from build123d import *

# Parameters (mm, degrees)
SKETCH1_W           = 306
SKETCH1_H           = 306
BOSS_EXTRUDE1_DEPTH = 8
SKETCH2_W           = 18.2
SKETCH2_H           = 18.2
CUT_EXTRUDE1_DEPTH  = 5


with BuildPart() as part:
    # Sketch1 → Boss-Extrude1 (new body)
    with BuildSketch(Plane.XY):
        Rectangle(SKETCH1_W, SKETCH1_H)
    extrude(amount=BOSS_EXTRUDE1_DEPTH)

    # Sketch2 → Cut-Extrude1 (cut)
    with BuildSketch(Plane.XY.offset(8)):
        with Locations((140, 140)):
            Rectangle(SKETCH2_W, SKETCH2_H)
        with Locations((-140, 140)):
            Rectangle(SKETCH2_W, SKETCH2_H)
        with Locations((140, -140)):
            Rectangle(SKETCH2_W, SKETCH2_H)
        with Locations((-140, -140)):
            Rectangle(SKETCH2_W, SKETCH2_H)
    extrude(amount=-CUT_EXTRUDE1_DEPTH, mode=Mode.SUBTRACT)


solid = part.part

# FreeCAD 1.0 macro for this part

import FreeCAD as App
import Part
import Sketcher
from FreeCAD import Vector
Q = App.Units.Quantity

doc = App.newDocument("Part")
body = doc.addObject("PartDesign::Body", "Body")

# Sketch on XY plane
sketch1 = body.newObject("Sketcher::SketchObject", "Sketch")
sketch1.AttachmentSupport = (doc.getObject("XY_Plane"), [""])
sketch1.MapMode = "FlatFace"
sketch1.addGeometry([
    Part.LineSegment(Vector(-153, 153, 0), Vector(-153, -153, 0)),
    Part.LineSegment(Vector(-153, -153, 0), Vector(153, -153, 0)),
    Part.LineSegment(Vector(153, -153, 0), Vector(153, 153, 0)),
    Part.LineSegment(Vector(153, 153, 0), Vector(-153, 153, 0)),
], False)
sketch1.addConstraint([
    Sketcher.Constraint("Coincident", 0, 2, 1, 1),
    Sketcher.Constraint("Coincident", 1, 2, 2, 1),
    Sketcher.Constraint("Coincident", 2, 2, 3, 1),
    Sketcher.Constraint("Coincident", 3, 2, 0, 1),
    Sketcher.Constraint("Vertical", 0),
    Sketcher.Constraint("Horizontal", 1),
    Sketcher.Constraint("Vertical", 2),
    Sketcher.Constraint("Horizontal", 3),
    Sketcher.Constraint("Symmetric", 0, 2, 2, 2, -1, 1),
    Sketcher.Constraint("Equal", 3, 0),
    Sketcher.Constraint("DistanceX", 1, 1, 1, 2, Q("306 mm")),
])
pad1 = body.newObject("PartDesign::Pad", "Pad")
pad1.Profile = sketch1
pad1.Length = 8

# Sketch on XY plane
sketch2 = body.newObject("Sketcher::SketchObject", "Sketch001")
sketch2.AttachmentSupport = (doc.getObject("XY_Plane"), [""])
sketch2.MapMode = "FlatFace"
sketch2.AttachmentOffset = App.Placement(Vector(0, 0, 8), App.Rotation())
sketch2.addGeometry([
    Part.LineSegment(Vector(131, 149, 0), Vector(131, 131, 0)),  # 0
    Part.LineSegment(Vector(131, 131, 0), Vector(149, 131, 0)),  # 1
    Part.LineSegment(Vector(149, 131, 0), Vector(149, 149, 0)),  # 2
    Part.LineSegment(Vector(149, 149, 0), Vector(131, 149, 0)),  # 3
    Part.LineSegment(Vector(-149, 149, 0), Vector(-149, 131, 0)),  # 4
    Part.LineSegment(Vector(-149, 131, 0), Vector(-131, 131, 0)),  # 5
    Part.LineSegment(Vector(-131, 131, 0), Vector(-131, 149, 0)),  # 6
    Part.LineSegment(Vector(-131, 149, 0), Vector(-149, 149, 0)),  # 7
    Part.LineSegment(Vector(131, -131, 0), Vector(131, -149, 0)),  # 8
    Part.LineSegment(Vector(131, -149, 0), Vector(149, -149, 0)),  # 9
    Part.LineSegment(Vector(149, -149, 0), Vector(149, -131, 0)),  # 10
    Part.LineSegment(Vector(149, -131, 0), Vector(131, -131, 0)),  # 11
    Part.LineSegment(Vector(-149, -131, 0), Vector(-149, -149, 0)),  # 12
    Part.LineSegment(Vector(-149, -149, 0), Vector(-131, -149, 0)),  # 13
    Part.LineSegment(Vector(-131, -149, 0), Vector(-131, -131, 0)),  # 14
    Part.LineSegment(Vector(-131, -131, 0), Vector(-149, -131, 0)),  # 15
], False)
sketch2.addConstraint([
    Sketcher.Constraint("Coincident", 0, 2, 1, 1),
    Sketcher.Constraint("Coincident", 1, 2, 2, 1),
    Sketcher.Constraint("Coincident", 2, 2, 3, 1),
    Sketcher.Constraint("Coincident", 3, 2, 0, 1),
    Sketcher.Constraint("Coincident", 4, 2, 5, 1),
    Sketcher.Constraint("Coincident", 5, 2, 6, 1),
    Sketcher.Constraint("Coincident", 6, 2, 7, 1),
    Sketcher.Constraint("Coincident", 7, 2, 4, 1),
    Sketcher.Constraint("Coincident", 8, 2, 9, 1),
    Sketcher.Constraint("Coincident", 9, 2, 10, 1),
    Sketcher.Constraint("Coincident", 10, 2, 11, 1),
    Sketcher.Constraint("Coincident", 11, 2, 8, 1),
    Sketcher.Constraint("Coincident", 12, 2, 13, 1),
    Sketcher.Constraint("Coincident", 13, 2, 14, 1),
    Sketcher.Constraint("Coincident", 14, 2, 15, 1),
    Sketcher.Constraint("Coincident", 15, 2, 12, 1),
    Sketcher.Constraint("Vertical", 0),
    Sketcher.Constraint("Horizontal", 1),
    Sketcher.Constraint("Vertical", 2),
    Sketcher.Constraint("Horizontal", 3),
    Sketcher.Constraint("Vertical", 4),
    Sketcher.Constraint("Horizontal", 5),
    Sketcher.Constraint("Vertical", 6),
    Sketcher.Constraint("Horizontal", 7),
    Sketcher.Constraint("Vertical", 8),
    Sketcher.Constraint("Horizontal", 9),
    Sketcher.Constraint("Vertical", 10),
    Sketcher.Constraint("Horizontal", 11),
    Sketcher.Constraint("Vertical", 12),
    Sketcher.Constraint("Horizontal", 13),
    Sketcher.Constraint("Vertical", 14),
    Sketcher.Constraint("Horizontal", 15),
    Sketcher.Constraint("Symmetric", 6, 2, 8, 2, -1, 1),
    Sketcher.Constraint("Symmetric", 4, 2, 10, 2, -1, 1),
    Sketcher.Constraint("Symmetric", 2, 2, 12, 2, -1, 1),
    Sketcher.Constraint("Symmetric", 0, 2, 14, 2, -1, 1),
    Sketcher.Constraint("Symmetric", 1, 2, 4, 2, -2),
    Sketcher.Constraint("Symmetric", 3, 2, 6, 2, -2),
    Sketcher.Constraint("Equal", 15, 0),
    Sketcher.Constraint("DistanceX", 1, 1, 1, 2, Q("18.2 mm")),
    Sketcher.Constraint("DistanceX", 4, 2, 0, 2, Q("280 mm")),
    Sketcher.Constraint("DistanceY", 8, 2, 0, 2, Q("280 mm")),
])
pocket1 = body.newObject("PartDesign::Pocket", "Pocket")
pocket1.Profile = sketch2
pocket1.Length = 5

doc.recompute()
